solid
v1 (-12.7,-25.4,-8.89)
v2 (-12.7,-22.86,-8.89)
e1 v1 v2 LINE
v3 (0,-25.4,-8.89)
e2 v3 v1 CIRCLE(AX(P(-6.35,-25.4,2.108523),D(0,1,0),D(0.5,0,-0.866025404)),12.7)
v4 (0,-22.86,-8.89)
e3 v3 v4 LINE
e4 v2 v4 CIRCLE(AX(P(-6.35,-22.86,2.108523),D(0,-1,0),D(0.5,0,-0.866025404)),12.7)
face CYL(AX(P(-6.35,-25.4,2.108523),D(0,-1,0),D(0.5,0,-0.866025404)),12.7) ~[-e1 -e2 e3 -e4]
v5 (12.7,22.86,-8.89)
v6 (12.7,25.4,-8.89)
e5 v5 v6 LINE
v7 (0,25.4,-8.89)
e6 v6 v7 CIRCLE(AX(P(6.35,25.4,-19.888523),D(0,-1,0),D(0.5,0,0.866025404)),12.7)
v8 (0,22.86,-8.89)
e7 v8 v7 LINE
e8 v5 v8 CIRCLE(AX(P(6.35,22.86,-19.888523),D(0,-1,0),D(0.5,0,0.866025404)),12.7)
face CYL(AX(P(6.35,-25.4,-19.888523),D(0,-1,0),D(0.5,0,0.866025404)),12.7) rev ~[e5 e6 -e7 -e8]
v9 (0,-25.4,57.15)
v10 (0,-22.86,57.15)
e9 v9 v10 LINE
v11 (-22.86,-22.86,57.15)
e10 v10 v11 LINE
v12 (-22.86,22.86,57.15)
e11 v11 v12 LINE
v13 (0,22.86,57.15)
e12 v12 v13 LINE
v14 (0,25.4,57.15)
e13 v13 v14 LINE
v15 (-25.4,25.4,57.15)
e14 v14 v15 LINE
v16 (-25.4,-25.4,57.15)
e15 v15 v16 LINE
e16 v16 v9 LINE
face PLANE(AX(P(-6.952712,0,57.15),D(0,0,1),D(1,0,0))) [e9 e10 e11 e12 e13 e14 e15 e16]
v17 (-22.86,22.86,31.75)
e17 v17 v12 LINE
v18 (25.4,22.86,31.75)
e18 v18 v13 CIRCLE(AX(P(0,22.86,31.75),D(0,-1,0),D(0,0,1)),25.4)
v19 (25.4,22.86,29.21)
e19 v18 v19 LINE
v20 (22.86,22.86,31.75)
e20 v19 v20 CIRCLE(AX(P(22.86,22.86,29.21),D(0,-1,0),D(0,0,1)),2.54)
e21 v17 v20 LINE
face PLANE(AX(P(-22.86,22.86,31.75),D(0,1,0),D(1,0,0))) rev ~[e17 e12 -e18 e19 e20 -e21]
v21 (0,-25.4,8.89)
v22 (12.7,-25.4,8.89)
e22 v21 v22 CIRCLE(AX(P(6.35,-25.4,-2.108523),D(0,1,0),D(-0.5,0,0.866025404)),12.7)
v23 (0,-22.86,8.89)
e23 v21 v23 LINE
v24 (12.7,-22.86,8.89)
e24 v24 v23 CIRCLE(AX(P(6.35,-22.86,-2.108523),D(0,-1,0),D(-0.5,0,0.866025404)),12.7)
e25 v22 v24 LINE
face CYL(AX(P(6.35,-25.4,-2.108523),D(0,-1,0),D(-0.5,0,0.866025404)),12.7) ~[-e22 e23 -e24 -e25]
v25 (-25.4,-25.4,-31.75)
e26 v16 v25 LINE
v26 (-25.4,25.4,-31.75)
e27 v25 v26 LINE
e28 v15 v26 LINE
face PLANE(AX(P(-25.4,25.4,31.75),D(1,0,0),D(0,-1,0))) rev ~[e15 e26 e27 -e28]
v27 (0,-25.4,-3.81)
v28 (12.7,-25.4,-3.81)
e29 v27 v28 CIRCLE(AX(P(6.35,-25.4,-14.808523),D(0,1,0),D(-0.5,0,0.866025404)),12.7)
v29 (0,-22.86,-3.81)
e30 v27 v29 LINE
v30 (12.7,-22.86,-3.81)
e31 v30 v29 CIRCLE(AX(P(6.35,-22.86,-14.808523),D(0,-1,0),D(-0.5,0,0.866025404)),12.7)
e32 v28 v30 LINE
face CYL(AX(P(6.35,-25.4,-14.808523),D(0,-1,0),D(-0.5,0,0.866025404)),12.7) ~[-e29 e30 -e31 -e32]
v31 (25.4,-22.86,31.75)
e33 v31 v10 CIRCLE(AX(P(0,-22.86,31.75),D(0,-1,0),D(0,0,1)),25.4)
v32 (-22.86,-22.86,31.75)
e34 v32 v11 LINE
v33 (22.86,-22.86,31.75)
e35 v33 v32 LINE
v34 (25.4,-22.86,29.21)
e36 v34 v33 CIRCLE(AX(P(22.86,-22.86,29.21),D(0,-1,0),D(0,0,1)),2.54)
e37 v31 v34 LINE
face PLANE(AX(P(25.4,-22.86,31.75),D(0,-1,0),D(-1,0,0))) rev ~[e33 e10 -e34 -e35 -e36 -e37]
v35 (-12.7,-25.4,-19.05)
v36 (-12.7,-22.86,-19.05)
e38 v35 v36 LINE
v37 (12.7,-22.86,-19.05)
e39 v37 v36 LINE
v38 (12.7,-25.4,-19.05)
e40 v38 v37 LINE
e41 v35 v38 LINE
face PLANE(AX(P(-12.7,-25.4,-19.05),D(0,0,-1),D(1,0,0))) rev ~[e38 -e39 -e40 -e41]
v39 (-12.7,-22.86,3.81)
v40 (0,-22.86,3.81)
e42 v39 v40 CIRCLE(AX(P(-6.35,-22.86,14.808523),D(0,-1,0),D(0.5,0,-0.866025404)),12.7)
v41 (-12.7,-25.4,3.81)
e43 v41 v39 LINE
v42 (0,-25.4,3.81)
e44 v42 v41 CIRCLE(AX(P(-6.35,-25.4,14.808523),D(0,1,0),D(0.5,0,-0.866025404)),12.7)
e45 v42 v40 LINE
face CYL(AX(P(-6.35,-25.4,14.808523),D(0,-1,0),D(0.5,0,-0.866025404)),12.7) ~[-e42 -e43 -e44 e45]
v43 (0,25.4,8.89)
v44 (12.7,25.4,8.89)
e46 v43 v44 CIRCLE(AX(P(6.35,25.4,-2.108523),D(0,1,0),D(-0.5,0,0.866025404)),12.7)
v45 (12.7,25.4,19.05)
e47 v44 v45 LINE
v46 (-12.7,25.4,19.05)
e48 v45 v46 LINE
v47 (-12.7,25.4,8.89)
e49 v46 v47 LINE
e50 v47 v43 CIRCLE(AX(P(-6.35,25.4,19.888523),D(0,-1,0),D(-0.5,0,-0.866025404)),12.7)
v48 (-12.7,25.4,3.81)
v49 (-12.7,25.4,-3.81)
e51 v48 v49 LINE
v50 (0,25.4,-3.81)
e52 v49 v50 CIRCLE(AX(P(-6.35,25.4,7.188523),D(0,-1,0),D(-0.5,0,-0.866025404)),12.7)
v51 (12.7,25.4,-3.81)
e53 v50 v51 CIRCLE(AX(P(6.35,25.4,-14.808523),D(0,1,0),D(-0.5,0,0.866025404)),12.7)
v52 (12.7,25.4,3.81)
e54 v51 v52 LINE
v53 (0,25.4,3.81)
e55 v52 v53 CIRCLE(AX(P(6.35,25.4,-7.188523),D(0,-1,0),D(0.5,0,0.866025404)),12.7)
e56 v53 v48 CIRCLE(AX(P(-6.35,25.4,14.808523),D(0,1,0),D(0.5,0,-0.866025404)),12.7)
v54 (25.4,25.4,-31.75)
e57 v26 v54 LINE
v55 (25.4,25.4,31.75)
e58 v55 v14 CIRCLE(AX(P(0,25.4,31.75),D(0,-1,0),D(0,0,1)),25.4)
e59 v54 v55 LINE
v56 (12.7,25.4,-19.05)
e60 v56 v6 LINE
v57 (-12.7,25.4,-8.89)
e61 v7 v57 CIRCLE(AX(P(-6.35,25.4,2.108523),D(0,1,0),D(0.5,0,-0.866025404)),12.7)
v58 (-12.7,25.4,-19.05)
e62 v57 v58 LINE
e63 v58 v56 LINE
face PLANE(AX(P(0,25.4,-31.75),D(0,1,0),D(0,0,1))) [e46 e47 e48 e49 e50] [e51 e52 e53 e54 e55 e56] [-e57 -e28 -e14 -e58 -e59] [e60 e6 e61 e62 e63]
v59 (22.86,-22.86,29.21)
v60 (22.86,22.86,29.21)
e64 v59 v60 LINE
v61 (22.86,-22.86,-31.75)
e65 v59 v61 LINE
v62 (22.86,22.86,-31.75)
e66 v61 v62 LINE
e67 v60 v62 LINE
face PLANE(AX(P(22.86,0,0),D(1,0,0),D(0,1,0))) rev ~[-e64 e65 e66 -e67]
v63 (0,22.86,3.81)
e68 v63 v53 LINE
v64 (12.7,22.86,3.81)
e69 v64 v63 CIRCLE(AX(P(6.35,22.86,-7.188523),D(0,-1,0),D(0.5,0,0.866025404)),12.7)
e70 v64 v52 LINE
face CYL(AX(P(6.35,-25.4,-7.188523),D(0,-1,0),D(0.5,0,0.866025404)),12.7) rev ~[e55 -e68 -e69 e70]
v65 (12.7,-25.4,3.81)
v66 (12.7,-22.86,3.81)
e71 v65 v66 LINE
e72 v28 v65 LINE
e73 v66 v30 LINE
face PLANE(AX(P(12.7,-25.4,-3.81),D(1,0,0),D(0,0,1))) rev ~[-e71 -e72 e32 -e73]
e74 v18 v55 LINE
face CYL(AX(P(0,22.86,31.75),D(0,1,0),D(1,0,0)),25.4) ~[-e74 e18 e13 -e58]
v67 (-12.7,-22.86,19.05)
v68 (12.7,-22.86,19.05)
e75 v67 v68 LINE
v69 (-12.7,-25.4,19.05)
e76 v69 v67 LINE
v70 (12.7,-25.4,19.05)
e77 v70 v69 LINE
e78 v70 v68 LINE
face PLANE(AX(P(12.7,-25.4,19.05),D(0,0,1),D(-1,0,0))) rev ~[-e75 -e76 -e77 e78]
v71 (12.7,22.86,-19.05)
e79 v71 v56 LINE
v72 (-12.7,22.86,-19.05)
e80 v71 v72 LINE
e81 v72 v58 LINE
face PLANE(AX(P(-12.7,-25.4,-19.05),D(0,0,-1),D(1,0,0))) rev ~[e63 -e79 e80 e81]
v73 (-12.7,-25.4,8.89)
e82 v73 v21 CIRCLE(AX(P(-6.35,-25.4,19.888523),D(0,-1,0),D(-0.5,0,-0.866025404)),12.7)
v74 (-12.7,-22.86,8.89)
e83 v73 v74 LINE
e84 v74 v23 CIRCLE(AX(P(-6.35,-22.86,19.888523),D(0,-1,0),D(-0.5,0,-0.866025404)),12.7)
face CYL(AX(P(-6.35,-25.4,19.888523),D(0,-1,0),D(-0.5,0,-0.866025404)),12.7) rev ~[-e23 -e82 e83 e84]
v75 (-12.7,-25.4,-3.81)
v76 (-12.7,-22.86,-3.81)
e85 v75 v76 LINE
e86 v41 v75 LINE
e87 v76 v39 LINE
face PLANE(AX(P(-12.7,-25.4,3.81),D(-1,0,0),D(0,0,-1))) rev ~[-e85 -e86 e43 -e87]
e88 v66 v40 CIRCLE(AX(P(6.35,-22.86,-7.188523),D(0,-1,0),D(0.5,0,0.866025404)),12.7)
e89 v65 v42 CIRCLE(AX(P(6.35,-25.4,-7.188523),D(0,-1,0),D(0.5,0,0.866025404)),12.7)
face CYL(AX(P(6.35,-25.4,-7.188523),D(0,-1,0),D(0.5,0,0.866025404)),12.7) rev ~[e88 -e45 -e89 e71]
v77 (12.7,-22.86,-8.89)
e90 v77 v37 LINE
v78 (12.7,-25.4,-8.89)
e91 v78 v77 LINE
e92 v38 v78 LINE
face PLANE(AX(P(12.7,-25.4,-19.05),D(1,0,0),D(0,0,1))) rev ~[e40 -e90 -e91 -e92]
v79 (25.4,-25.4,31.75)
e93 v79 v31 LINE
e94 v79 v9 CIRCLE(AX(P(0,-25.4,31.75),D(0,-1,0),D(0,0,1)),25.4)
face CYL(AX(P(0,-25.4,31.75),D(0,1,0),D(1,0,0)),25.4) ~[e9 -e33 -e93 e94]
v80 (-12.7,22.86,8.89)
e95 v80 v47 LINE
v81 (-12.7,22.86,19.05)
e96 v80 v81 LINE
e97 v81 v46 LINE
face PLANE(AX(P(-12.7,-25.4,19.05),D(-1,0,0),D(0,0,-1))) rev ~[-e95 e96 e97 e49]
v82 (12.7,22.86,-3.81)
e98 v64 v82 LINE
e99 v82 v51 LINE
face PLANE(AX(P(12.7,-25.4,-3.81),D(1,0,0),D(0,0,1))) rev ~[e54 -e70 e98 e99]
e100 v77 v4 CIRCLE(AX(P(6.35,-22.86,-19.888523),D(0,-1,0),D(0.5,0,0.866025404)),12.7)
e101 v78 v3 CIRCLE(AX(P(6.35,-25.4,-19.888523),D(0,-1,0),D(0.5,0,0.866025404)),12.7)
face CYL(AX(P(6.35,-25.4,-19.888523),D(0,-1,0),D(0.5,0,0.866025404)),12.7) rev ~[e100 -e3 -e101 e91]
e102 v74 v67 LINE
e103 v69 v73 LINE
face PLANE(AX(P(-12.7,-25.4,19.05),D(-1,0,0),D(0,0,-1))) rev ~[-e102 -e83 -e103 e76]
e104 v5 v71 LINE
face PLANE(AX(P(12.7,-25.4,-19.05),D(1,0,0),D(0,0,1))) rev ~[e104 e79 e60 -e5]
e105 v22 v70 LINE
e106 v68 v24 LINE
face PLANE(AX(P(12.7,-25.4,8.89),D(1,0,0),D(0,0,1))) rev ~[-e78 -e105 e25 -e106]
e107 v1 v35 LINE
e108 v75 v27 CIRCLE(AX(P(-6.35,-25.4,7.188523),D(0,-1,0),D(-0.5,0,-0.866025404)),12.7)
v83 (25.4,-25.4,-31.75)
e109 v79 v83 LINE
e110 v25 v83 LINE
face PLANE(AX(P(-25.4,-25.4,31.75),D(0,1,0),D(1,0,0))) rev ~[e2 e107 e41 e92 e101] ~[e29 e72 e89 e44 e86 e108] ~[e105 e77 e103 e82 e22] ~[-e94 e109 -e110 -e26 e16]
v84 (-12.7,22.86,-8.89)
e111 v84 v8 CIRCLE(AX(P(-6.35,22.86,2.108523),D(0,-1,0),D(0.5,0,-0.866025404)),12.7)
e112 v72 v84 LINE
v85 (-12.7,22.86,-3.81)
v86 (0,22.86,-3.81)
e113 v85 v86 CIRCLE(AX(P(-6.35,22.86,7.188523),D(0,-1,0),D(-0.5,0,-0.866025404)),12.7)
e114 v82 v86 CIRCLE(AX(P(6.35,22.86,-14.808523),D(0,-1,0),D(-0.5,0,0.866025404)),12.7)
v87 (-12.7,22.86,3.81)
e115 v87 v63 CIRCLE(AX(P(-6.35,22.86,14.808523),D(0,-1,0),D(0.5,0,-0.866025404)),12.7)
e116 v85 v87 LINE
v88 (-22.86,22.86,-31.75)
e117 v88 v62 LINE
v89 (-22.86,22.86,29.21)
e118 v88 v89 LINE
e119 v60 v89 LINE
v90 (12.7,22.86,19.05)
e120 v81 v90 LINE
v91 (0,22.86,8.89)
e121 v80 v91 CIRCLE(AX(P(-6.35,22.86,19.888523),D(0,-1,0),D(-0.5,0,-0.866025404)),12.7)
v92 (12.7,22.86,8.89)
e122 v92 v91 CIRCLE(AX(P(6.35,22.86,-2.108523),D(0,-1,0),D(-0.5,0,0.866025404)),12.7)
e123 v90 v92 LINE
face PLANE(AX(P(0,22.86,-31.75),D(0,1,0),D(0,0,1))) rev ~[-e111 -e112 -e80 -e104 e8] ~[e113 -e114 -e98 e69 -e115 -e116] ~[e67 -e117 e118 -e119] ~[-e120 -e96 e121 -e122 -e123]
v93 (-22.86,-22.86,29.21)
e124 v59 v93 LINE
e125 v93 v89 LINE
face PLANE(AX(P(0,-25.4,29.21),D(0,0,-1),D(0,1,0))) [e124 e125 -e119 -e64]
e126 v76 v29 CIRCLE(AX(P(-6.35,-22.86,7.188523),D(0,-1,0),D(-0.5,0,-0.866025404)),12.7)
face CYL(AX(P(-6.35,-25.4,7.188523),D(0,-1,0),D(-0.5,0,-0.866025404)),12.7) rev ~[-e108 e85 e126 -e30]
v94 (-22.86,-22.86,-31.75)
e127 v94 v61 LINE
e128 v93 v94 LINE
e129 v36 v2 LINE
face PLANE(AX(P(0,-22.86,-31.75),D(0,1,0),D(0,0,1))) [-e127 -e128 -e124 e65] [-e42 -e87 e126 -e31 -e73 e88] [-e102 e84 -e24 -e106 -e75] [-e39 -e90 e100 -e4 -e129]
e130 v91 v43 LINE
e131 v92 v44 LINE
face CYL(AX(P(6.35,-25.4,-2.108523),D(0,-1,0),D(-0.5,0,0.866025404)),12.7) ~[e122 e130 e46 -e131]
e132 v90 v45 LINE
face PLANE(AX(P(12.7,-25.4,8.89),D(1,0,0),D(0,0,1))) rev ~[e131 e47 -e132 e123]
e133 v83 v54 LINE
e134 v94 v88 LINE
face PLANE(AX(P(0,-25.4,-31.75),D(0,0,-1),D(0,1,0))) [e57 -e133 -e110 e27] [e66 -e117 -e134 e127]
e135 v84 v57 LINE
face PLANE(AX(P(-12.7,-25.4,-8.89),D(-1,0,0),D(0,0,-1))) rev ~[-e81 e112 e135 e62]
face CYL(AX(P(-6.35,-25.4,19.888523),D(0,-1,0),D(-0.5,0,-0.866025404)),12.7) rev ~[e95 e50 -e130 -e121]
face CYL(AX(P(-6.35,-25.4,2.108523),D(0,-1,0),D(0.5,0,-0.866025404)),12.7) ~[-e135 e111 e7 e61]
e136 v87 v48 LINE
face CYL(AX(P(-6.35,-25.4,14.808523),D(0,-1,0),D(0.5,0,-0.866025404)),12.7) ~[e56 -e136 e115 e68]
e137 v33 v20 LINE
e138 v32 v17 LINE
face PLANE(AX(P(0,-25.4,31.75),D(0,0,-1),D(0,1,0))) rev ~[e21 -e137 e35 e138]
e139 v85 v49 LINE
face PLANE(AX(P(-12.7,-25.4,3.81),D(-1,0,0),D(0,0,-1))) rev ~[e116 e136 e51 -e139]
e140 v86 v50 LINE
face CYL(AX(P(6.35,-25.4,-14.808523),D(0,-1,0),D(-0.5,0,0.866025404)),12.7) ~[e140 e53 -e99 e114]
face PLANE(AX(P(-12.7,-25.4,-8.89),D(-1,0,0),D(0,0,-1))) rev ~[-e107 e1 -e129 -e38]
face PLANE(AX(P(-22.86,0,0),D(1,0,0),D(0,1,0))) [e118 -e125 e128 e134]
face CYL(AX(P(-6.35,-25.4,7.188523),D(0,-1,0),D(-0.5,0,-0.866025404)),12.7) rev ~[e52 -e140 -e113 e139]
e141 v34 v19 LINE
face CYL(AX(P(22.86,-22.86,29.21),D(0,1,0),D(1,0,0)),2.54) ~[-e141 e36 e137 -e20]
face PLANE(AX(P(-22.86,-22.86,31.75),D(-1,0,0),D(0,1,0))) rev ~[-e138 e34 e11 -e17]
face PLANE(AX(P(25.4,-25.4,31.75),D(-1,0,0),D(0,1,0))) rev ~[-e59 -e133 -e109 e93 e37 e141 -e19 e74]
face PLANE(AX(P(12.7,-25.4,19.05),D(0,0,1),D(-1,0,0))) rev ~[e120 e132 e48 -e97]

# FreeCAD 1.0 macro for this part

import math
import FreeCAD as App
import Part
import Sketcher

V = App.Vector
Q = App.Units.Quantity


def edges_at(feature, points):
    """Names of the edges that pass closest to the given points."""
    edges = feature.Shape.Edges
    near = lambda p: min(range(len(edges)), key=lambda i: edges[i].distToShape(Part.Vertex(*p))[0])
    return sorted({f"Edge{near(p) + 1}" for p in points})


def faces_at(feature, points):
    """Names of the faces that lie closest to the given points."""
    faces = feature.Shape.Faces
    near = lambda p: min(range(len(faces)), key=lambda i: faces[i].distToShape(Part.Vertex(*p))[0])
    return sorted({f"Face{near(p) + 1}" for p in points})


def add_polygon(sketch, points):
    """Adds a closed chain of lines whose ends are joined by coincident constraints."""
    first, n = sketch.GeometryCount, len(points)
    for a, b in zip(points, points[1:] + points[:1]):
        sketch.addGeometry(Part.LineSegment(App.Vector(*a, 0), App.Vector(*b, 0)), False)
    for i in range(n):
        sketch.addConstraint(Sketcher.Constraint("Coincident", first + i, 2, first + (i + 1) % n, 1))

doc = App.newDocument("Part")
body = doc.addObject("PartDesign::Body", "Body")

sketch1 = body.newObject("Sketcher::SketchObject", "Sketch")
sketch1.AttachmentSupport = (doc.getObject("YZ_Plane"), [""])
sketch1.MapMode = "FlatFace"
add_polygon(sketch1, [(-25, 32), (-25, -32), (25, -32), (25, 32)])
sketch1.addConstraint(Sketcher.Constraint("Vertical", 0))
sketch1.addConstraint(Sketcher.Constraint("Horizontal", 1))
sketch1.addConstraint(Sketcher.Constraint("Vertical", 2))
sketch1.addConstraint(Sketcher.Constraint("Horizontal", 3))
sketch1.addConstraint(Sketcher.Constraint("Symmetric", 0, 2, 2, 2, -1, 1))
sketch1.addConstraint(Sketcher.Constraint("DistanceX", 1, 1, 1, 2, Q("2 in")))
sketch1.addConstraint(Sketcher.Constraint("DistanceY", 0, 2, 0, 1, Q("2.5 in")))
pad1 = body.newObject("PartDesign::Pad", "Pad")
pad1.Profile = sketch1
pad1.Length = Q("2 in")
pad1.Midplane = True
doc.recompute()

thickness = body.newObject("PartDesign::Thickness", "Thickness")
thickness.Base = (pad1, faces_at(pad1, [(0, 0, -31.75)]))
thickness.Value = Q("0.1 in")
thickness.Reversed = True
thickness.Join = "Arc"

sketch2 = body.newObject("Sketcher::SketchObject", "Sketch001")
sketch2.AttachmentSupport = (doc.getObject("XY_Plane"), [""])
sketch2.MapMode = "FlatFace"
sketch2.AttachmentOffset = App.Placement(V(0, 0, 1.25 * 25.4), App.Rotation())
add_polygon(sketch2, [(25.4, -25.4), (25.4, -22.9), (-22.9, -22.9), (-22.9, 22.9), (25.4, 22.9), (25.4, 25.4), (-25.4, 25.4), (-25.4, -25.4)])
sketch2.addConstraint(Sketcher.Constraint("Vertical", 0))
sketch2.addConstraint(Sketcher.Constraint("Horizontal", 1))
sketch2.addConstraint(Sketcher.Constraint("Vertical", 2))
sketch2.addConstraint(Sketcher.Constraint("Horizontal", 3))
sketch2.addConstraint(Sketcher.Constraint("Vertical", 4))
sketch2.addConstraint(Sketcher.Constraint("Horizontal", 5))
sketch2.addConstraint(Sketcher.Constraint("Vertical", 6))
sketch2.addConstraint(Sketcher.Constraint("Horizontal", 7))
sketch2.addConstraint(Sketcher.Constraint("Symmetric", 4, 2, 6, 2, -1, 1))
sketch2.addConstraint(Sketcher.Constraint("Symmetric", 0, 2, 3, 2, -1))
sketch2.addConstraint(Sketcher.Constraint("Equal", 7, 6))
sketch2.addConstraint(Sketcher.Constraint("DistanceX", 5, 2, 5, 1, Q("2 in")))
sketch2.addConstraint(Sketcher.Constraint("DistanceX", 1, 2, 1, 1, Q("1.9 in")))
sketch2.addConstraint(Sketcher.Constraint("DistanceY", 0, 1, 0, 2, Q("0.1 in")))
pad2 = body.newObject("PartDesign::Pad", "Pad001")
pad2.Profile = sketch2
pad2.Length = Q("1 in")
doc.recompute()

fillet = body.newObject("PartDesign::Fillet", "Fillet")
fillet.Base = (pad2, edges_at(pad2, [(25.4, -24.13, 57.15), (25.4, 24.13, 57.15)]))
fillet.Radius = Q("1 in")
doc.recompute()

fillet2 = body.newObject("PartDesign::Fillet", "Fillet001")
fillet2.Base = (fillet, edges_at(fillet, [(25.4, 0, 31.75)]))
fillet2.Radius = Q("0.1 in")

sketch3 = body.newObject("Sketcher::SketchObject", "Sketch002")
sketch3.AttachmentSupport = (doc.getObject("XZ_Plane"), [""])
sketch3.MapMode = "FlatFace"
sketch3.AttachmentOffset = App.Placement(V(0, 0, 1 * 25.4), App.Rotation())
sketch3.addGeometry(Part.LineSegment(V(-13, 19, 0), V(-13, 9, 0)), False)
sketch3.addGeometry(Part.ArcOfCircle(Part.Circle(V(-6, 20, 0), V(0, 0, 1), 13), math.radians(-120), math.radians(-60)), False)
sketch3.addGeometry(Part.ArcOfCircle(Part.Circle(V(6, -2, 0), V(0, 0, 1), 13), math.radians(60), math.radians(120)), False)
sketch3.addGeometry(Part.LineSegment(V(13, 9, 0), V(13, 19, 0)), False)
sketch3.addGeometry(Part.LineSegment(V(13, 19, 0), V(-13, 19, 0)), False)
sketch3.addGeometry(Part.LineSegment(V(-13, 4, 0), V(-13, -4, 0)), False)
sketch3.addGeometry(Part.ArcOfCircle(Part.Circle(V(-6, 7, 0), V(0, 0, 1), 13), math.radians(-120), math.radians(-60)), False)
sketch3.addGeometry(Part.ArcOfCircle(Part.Circle(V(6, -15, 0), V(0, 0, 1), 13), math.radians(60), math.radians(120)), False)
sketch3.addGeometry(Part.LineSegment(V(13, -4, 0), V(13, 4, 0)), False)
sketch3.addGeometry(Part.ArcOfCircle(Part.Circle(V(6, -7, 0), V(0, 0, 1), 13), math.radians(60), math.radians(120)), False)
sketch3.addGeometry(Part.ArcOfCircle(Part.Circle(V(-6, 15, 0), V(0, 0, 1), 13), math.radians(-120), math.radians(-60)), False)
sketch3.addGeometry(Part.LineSegment(V(-13, -9, 0), V(-13, -19, 0)), False)
sketch3.addGeometry(Part.LineSegment(V(-13, -19, 0), V(13, -19, 0)), False)
sketch3.addGeometry(Part.LineSegment(V(13, -19, 0), V(13, -9, 0)), False)
sketch3.addGeometry(Part.ArcOfCircle(Part.Circle(V(6, -20, 0), V(0, 0, 1), 13), math.radians(60), math.radians(120)), False)
sketch3.addGeometry(Part.ArcOfCircle(Part.Circle(V(-6, 2, 0), V(0, 0, 1), 13), math.radians(-120), math.radians(-60)), False)
sketch3.addConstraint(Sketcher.Constraint("Coincident", 0, 2, 1, 1))
sketch3.addConstraint(Sketcher.Constraint("Tangent", 1, 2, 2, 2))
sketch3.addConstraint(Sketcher.Constraint("Coincident", 2, 1, 3, 1))
sketch3.addConstraint(Sketcher.Constraint("Coincident", 3, 2, 4, 1))
sketch3.addConstraint(Sketcher.Constraint("Coincident", 4, 2, 0, 1))
sketch3.addConstraint(Sketcher.Constraint("Coincident", 5, 2, 6, 1))
sketch3.addConstraint(Sketcher.Constraint("Tangent", 6, 2, 7, 2))
sketch3.addConstraint(Sketcher.Constraint("Coincident", 7, 1, 8, 1))
sketch3.addConstraint(Sketcher.Constraint("Coincident", 8, 2, 9, 1))
sketch3.addConstraint(Sketcher.Constraint("Tangent", 9, 2, 10, 2))
sketch3.addConstraint(Sketcher.Constraint("Coincident", 10, 1, 5, 1))
sketch3.addConstraint(Sketcher.Constraint("Coincident", 11, 2, 12, 1))
sketch3.addConstraint(Sketcher.Constraint("Coincident", 12, 2, 13, 1))
sketch3.addConstraint(Sketcher.Constraint("Coincident", 13, 2, 14, 1))
sketch3.addConstraint(Sketcher.Constraint("Tangent", 14, 2, 15, 2))
sketch3.addConstraint(Sketcher.Constraint("Coincident", 15, 1, 11, 1))
sketch3.addConstraint(Sketcher.Constraint("Vertical", 0))
sketch3.addConstraint(Sketcher.Constraint("Vertical", 3))
sketch3.addConstraint(Sketcher.Constraint("Horizontal", 4))
sketch3.addConstraint(Sketcher.Constraint("Vertical", 5))
sketch3.addConstraint(Sketcher.Constraint("Vertical", 8))
sketch3.addConstraint(Sketcher.Constraint("Vertical", 11))
sketch3.addConstraint(Sketcher.Constraint("Horizontal", 12))
sketch3.addConstraint(Sketcher.Constraint("Vertical", 13))
sketch3.addConstraint(Sketcher.Constraint("Equal", 1, 2))
sketch3.addConstraint(Sketcher.Constraint("Equal", 2, 6))
sketch3.addConstraint(Sketcher.Constraint("Equal", 6, 7))
sketch3.addConstraint(Sketcher.Constraint("Equal", 7, 9))
sketch3.addConstraint(Sketcher.Constraint("Equal", 9, 10))
sketch3.addConstraint(Sketcher.Constraint("Equal", 10, 14))
sketch3.addConstraint(Sketcher.Constraint("Equal", 14, 15))
sketch3.addConstraint(Sketcher.Constraint("Symmetric", 6, 3, 9, 3, -1, 1))
sketch3.addConstraint(Sketcher.Constraint("Symmetric", 1, 3, 14, 3, -1, 1))
sketch3.addConstraint(Sketcher.Constraint("Symmetric", 7, 1, 10, 1, -1, 1))
sketch3.addConstraint(Sketcher.Constraint("Symmetric", 3, 2, 11, 2, -1, 1))
sketch3.addConstraint(Sketcher.Constraint("Symmetric", 0, 2, 2, 1, -2))
sketch3.addConstraint(Sketcher.Constraint("Symmetric", 13, 2, 15, 1, -2))
sketch3.addConstraint(Sketcher.Constraint("PointOnObject", 1, 2, -2))
sketch3.addConstraint(Sketcher.Constraint("PointOnObject", 6, 2, -2))
sketch3.addConstraint(Sketcher.Constraint("Horizontal", 5, 2, 6, 2))
sketch3.addConstraint(Sketcher.Constraint("Vertical", 1, 3, 6, 3))
sketch3.addConstraint(Sketcher.Constraint("Radius", 1, Q("0.5 in")))
sketch3.addConstraint(Sketcher.Constraint("DistanceX", 4, 2, 4, 1, Q("1 in")))
sketch3.addConstraint(Sketcher.Constraint("DistanceY", 0, 2, 0, 1, Q("0.4 in")))
sketch3.addConstraint(Sketcher.Constraint("DistanceY", 5, 2, 5, 1, Q("0.3 in")))
sketch3.addConstraint(Sketcher.Constraint("DistanceY", 6, 3, 1, 3, Q("0.5 in")))
pocket1 = body.newObject("PartDesign::Pocket", "Pocket")
pocket1.Profile = sketch3
pocket1.Length = Q("2 in")

doc.recompute()
